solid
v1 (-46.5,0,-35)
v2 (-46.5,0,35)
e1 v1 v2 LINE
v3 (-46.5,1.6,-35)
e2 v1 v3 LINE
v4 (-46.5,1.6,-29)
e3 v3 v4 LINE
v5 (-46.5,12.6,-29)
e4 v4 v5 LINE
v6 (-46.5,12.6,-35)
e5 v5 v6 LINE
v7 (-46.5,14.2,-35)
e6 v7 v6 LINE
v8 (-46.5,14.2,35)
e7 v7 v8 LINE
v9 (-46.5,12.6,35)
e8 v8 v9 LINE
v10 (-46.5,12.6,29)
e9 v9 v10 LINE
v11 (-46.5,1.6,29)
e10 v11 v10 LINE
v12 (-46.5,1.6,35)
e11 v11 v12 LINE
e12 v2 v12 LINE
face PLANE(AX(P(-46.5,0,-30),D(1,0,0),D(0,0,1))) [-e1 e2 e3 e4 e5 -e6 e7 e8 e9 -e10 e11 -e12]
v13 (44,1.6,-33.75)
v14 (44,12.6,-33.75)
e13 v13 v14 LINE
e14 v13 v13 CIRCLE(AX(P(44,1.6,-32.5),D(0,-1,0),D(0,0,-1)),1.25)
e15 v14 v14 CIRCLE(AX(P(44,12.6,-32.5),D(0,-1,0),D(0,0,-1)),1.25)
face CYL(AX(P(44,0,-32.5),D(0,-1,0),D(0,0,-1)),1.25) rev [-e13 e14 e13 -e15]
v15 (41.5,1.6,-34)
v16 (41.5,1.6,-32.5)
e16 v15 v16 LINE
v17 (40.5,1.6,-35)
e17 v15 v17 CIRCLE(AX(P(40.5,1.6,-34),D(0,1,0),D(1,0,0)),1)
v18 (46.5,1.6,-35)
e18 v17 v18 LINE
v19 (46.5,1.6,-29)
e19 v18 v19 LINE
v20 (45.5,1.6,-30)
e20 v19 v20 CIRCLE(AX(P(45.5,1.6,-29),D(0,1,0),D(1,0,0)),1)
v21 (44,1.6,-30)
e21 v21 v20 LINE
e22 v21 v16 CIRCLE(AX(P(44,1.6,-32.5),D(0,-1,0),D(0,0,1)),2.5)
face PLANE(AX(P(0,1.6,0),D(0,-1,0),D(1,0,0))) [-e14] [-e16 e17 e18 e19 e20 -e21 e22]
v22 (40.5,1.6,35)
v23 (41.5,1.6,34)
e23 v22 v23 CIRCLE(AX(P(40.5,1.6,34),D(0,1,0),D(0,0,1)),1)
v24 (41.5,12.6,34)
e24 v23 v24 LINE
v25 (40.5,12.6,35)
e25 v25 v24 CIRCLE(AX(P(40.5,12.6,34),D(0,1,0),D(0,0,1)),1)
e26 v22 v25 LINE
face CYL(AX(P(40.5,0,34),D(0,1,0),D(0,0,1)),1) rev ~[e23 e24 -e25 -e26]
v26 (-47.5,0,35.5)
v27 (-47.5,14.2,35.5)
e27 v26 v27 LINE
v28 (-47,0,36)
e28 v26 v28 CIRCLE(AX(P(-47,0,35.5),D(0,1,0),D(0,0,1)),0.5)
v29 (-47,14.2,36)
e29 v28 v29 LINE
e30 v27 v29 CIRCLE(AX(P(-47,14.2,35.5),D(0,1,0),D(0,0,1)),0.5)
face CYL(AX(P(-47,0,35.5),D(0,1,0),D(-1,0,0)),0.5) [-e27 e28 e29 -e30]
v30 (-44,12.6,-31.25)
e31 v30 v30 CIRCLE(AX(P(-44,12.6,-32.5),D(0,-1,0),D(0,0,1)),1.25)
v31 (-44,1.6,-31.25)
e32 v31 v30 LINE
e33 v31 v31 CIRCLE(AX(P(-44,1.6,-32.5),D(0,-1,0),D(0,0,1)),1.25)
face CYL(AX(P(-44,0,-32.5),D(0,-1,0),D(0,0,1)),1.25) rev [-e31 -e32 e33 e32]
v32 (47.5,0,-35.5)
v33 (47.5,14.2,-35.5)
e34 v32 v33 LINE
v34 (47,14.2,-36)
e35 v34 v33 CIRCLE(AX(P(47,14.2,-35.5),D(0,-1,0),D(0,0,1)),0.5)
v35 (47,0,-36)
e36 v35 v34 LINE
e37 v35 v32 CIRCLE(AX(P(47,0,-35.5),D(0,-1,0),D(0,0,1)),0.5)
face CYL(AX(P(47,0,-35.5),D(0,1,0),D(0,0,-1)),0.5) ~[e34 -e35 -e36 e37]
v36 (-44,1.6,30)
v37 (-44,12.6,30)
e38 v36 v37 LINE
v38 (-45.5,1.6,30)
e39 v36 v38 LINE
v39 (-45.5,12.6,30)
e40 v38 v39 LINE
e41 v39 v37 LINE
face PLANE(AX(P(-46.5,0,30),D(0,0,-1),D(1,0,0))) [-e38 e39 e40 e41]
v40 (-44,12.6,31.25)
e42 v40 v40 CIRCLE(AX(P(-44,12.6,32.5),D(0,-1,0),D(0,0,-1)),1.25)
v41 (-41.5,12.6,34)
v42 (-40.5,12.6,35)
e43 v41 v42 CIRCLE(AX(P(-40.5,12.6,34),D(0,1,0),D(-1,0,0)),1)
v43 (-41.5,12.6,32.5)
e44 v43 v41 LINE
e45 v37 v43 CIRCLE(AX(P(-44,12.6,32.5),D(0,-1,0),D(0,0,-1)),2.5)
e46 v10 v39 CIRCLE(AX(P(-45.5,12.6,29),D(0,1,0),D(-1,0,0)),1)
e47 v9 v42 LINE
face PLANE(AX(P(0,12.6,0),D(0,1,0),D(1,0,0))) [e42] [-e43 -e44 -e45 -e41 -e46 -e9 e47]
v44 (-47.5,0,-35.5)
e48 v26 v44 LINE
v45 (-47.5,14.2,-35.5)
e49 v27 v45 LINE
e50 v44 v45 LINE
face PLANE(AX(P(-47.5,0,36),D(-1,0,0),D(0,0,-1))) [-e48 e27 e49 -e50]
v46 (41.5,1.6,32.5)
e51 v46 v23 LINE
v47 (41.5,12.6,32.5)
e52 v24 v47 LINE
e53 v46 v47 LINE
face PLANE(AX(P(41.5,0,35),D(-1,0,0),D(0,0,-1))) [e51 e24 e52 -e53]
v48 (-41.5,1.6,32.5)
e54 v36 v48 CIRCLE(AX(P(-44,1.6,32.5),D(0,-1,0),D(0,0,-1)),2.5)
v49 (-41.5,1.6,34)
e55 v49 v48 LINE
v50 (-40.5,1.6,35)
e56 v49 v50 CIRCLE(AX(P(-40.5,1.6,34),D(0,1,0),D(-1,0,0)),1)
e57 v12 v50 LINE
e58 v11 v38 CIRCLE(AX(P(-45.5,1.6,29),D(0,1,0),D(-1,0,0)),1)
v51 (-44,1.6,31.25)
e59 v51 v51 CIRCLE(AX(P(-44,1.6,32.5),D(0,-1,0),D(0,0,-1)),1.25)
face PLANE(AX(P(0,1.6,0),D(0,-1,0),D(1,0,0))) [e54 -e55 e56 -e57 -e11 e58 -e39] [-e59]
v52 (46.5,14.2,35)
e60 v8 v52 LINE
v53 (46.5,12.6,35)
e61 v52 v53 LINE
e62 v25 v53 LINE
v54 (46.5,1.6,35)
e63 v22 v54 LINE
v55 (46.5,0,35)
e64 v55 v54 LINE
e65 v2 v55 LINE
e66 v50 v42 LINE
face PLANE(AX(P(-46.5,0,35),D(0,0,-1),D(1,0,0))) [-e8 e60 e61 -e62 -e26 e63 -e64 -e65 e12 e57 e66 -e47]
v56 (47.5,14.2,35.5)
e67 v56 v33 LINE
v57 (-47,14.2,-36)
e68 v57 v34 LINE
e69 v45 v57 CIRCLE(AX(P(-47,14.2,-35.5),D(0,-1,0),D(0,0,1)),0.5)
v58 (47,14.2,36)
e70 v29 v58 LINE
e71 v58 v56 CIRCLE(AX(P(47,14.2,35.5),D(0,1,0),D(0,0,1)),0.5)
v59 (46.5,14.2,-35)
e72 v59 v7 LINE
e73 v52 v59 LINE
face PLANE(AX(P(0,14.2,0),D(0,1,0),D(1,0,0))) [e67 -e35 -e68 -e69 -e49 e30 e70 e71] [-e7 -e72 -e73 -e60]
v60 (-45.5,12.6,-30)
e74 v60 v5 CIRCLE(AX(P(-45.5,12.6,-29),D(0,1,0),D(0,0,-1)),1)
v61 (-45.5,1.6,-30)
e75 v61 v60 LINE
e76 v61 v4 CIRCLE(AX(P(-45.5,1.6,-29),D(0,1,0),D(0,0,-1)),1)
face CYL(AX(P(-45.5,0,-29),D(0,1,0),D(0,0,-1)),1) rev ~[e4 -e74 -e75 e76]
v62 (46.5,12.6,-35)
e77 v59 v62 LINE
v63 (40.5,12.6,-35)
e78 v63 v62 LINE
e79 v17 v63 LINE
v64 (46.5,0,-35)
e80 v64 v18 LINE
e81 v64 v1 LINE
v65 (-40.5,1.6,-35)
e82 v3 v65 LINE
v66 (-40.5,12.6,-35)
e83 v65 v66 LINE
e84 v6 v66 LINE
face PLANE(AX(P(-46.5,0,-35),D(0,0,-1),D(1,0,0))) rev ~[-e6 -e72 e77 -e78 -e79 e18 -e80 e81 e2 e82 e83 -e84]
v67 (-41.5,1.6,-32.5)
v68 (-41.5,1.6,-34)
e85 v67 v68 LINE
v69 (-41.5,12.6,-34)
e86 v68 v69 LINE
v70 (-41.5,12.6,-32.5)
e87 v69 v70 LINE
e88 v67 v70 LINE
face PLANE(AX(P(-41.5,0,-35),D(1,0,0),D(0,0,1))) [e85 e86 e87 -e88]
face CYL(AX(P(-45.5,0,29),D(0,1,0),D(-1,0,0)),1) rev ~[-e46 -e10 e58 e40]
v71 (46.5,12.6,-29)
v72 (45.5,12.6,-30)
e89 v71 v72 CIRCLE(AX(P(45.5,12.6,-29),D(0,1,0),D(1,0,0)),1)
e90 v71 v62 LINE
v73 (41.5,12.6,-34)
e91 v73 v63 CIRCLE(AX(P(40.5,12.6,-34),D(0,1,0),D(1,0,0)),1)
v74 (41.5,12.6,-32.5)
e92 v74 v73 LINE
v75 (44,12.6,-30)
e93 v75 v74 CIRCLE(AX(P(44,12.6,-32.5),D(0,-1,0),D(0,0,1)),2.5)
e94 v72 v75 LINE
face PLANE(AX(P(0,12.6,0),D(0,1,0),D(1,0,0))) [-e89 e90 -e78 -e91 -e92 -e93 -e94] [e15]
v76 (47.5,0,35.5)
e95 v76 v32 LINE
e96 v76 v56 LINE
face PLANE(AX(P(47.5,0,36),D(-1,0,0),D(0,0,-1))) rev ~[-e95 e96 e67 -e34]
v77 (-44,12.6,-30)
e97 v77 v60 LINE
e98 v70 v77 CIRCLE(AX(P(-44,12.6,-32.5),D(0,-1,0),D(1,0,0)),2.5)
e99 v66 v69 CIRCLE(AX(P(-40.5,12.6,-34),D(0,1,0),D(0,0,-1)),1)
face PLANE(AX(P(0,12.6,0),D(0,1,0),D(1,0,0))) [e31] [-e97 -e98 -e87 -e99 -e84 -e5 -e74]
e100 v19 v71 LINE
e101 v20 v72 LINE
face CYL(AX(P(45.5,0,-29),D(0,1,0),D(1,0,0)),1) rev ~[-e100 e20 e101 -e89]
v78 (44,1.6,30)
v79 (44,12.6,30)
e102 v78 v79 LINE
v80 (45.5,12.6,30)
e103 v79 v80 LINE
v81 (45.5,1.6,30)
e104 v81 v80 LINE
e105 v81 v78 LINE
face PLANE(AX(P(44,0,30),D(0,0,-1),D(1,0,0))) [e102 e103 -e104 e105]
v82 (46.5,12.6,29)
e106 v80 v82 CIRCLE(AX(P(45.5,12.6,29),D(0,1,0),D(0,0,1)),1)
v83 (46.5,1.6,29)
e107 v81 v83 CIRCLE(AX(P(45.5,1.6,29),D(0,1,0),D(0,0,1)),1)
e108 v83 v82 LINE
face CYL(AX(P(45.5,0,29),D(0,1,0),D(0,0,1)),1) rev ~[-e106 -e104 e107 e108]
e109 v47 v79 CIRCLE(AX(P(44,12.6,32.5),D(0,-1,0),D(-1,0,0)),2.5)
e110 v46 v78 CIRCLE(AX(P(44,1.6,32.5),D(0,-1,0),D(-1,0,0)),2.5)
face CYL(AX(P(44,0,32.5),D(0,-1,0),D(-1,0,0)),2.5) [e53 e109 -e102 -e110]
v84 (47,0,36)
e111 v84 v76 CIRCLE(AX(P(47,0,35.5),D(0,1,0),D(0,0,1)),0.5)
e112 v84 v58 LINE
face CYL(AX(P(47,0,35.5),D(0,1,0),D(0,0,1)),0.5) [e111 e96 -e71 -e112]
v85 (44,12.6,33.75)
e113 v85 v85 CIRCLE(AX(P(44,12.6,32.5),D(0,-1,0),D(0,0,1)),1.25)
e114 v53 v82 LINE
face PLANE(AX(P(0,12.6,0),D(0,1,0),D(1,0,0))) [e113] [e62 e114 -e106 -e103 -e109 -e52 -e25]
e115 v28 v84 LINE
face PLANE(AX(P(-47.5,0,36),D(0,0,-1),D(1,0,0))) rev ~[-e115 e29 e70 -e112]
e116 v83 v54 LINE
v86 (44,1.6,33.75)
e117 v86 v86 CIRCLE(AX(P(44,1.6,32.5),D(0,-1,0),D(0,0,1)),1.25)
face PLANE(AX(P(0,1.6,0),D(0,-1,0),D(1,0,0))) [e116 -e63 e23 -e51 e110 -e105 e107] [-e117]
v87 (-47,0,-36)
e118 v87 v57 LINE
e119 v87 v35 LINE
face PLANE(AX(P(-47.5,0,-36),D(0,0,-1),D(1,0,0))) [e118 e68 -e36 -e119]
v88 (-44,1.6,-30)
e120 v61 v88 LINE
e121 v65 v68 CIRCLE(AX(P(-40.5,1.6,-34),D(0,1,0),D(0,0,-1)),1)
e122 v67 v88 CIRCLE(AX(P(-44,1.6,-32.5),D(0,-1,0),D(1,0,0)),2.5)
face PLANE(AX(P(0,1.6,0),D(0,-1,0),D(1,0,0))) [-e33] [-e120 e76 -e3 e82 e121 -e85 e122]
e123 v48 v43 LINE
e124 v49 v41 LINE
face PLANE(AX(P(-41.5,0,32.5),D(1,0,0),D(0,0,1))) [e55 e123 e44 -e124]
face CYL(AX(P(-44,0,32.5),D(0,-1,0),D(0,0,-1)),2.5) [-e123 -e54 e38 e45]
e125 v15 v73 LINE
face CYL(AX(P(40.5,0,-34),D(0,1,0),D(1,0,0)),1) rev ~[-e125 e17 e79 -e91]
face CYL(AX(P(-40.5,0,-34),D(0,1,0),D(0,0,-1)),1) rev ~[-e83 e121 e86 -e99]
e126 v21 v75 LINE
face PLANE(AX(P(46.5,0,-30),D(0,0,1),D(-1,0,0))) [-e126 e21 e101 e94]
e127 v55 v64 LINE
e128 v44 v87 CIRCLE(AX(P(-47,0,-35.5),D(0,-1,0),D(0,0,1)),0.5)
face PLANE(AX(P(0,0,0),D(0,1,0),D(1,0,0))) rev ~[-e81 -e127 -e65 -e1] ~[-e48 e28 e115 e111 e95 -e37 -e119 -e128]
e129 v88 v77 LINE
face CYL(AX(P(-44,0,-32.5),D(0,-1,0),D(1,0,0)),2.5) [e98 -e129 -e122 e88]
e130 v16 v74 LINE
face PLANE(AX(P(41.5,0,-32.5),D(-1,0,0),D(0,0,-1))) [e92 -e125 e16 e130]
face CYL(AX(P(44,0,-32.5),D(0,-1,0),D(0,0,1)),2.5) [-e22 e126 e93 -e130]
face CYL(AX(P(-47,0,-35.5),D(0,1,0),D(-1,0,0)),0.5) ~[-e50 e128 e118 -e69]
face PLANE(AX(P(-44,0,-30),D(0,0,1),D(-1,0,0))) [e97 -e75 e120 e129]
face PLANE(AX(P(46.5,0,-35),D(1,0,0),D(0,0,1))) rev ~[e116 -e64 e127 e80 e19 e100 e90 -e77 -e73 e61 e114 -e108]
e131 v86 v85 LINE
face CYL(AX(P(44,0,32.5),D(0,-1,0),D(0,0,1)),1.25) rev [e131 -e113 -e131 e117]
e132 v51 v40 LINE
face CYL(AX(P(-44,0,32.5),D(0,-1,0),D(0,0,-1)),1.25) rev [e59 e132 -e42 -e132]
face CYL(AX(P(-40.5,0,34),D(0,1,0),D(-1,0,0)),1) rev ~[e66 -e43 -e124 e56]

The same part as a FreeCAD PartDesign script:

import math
import FreeCAD as App
import Part
import Sketcher
Q = App.Units.Quantity


def edges_at(feature, points):
    """Names of the edges that pass closest to the given points."""
    edges = feature.Shape.Edges
    near = lambda p: min(range(len(edges)), key=lambda i: edges[i].distToShape(Part.Vertex(*p))[0])
    return sorted({f"Edge{near(p) + 1}" for p in points})


def add_polygon(sketch, points):
    """Adds a closed chain of lines whose ends are joined by coincident constraints."""
    first, n = sketch.GeometryCount, len(points)
    for a, b in zip(points, points[1:] + points[:1]):
        sketch.addGeometry(Part.LineSegment(App.Vector(*a, 0), App.Vector(*b, 0)), False)
    for i in range(n):
        sketch.addConstraint(Sketcher.Constraint("Coincident", first + i, 2, first + (i + 1) % n, 1))

doc = App.newDocument("Part")
body = doc.addObject("PartDesign::Body", "Body")

sketch1 = body.newObject("Sketcher::SketchObject", "Sketch")
sketch1.AttachmentSupport = (doc.getObject("XZ_Plane"), [""])
sketch1.MapMode = "FlatFace"
add_polygon(sketch1, [(-47.5, -36), (-47.5, 36), (47.5, 36), (47.5, -36)])
sketch1.addGeometry(Part.Circle(App.Vector(-44, 32.5, 0), App.Vector(0, 0, 1), 1.2), False)
sketch1.addGeometry(Part.Circle(App.Vector(44, 32.5, 0), App.Vector(0, 0, 1), 1.2), False)
sketch1.addGeometry(Part.Circle(App.Vector(-44, -32.5, 0), App.Vector(0, 0, 1), 1.2), False)
sketch1.addGeometry(Part.LineSegment(App.Vector(-46.5, -30, 0), App.Vector(-44, -30, 0)), False)
sketch1.addGeometry(Part.ArcOfCircle(Part.Circle(App.Vector(-44, -32.5, 0), App.Vector(0, 0, 1), 2.5), math.radians(0), math.radians(90)), False)
sketch1.addGeometry(Part.LineSegment(App.Vector(-41.5, -32.5, 0), App.Vector(-41.5, -35, 0)), False)
sketch1.addGeometry(Part.LineSegment(App.Vector(-41.5, -35, 0), App.Vector(41.5, -35, 0)), False)
sketch1.addGeometry(Part.LineSegment(App.Vector(41.5, -35, 0), App.Vector(41.5, -32.5, 0)), False)
sketch1.addGeometry(Part.ArcOfCircle(Part.Circle(App.Vector(44, -32.5, 0), App.Vector(0, 0, 1), 2.5), math.radians(90), math.radians(180)), False)
sketch1.addGeometry(Part.LineSegment(App.Vector(44, -30, 0), App.Vector(46.5, -30, 0)), False)
sketch1.addGeometry(Part.LineSegment(App.Vector(46.5, -30, 0), App.Vector(46.5, 30, 0)), False)
sketch1.addGeometry(Part.LineSegment(App.Vector(46.5, 30, 0), App.Vector(44, 30, 0)), False)
sketch1.addGeometry(Part.ArcOfCircle(Part.Circle(App.Vector(44, 32.5, 0), App.Vector(0, 0, 1), 2.5), math.radians(180), math.radians(270)), False)
sketch1.addGeometry(Part.LineSegment(App.Vector(41.5, 32.5, 0), App.Vector(41.5, 35, 0)), False)
sketch1.addGeometry(Part.LineSegment(App.Vector(41.5, 35, 0), App.Vector(-41.5, 35, 0)), False)
sketch1.addGeometry(Part.LineSegment(App.Vector(-41.5, 35, 0), App.Vector(-41.5, 32.5, 0)), False)
sketch1.addGeometry(Part.ArcOfCircle(Part.Circle(App.Vector(-44, 32.5, 0), App.Vector(0, 0, 1), 2.5), math.radians(-90), math.radians(0)), False)
sketch1.addGeometry(Part.LineSegment(App.Vector(-44, 30, 0), App.Vector(-46.5, 30, 0)), False)
sketch1.addGeometry(Part.LineSegment(App.Vector(-46.5, 30, 0), App.Vector(-46.5, -30, 0)), False)
sketch1.addGeometry(Part.Circle(App.Vector(44, -32.5, 0), App.Vector(0, 0, 1), 1.2), False)
sketch1.addConstraint(Sketcher.Constraint("Tangent", 7, 2, 8, 2))
sketch1.addConstraint(Sketcher.Constraint("Tangent", 8, 1, 9, 1))
sketch1.addConstraint(Sketcher.Constraint("Coincident", 9, 2, 10, 1))
sketch1.addConstraint(Sketcher.Constraint("Coincident", 10, 2, 11, 1))
sketch1.addConstraint(Sketcher.Constraint("Tangent", 11, 2, 12, 2))
sketch1.addConstraint(Sketcher.Constraint("Tangent", 12, 1, 13, 1))
sketch1.addConstraint(Sketcher.Constraint("Coincident", 13, 2, 14, 1))
sketch1.addConstraint(Sketcher.Constraint("Coincident", 14, 2, 15, 1))
sketch1.addConstraint(Sketcher.Constraint("Tangent", 15, 2, 16, 2))
sketch1.addConstraint(Sketcher.Constraint("Tangent", 16, 1, 17, 1))
sketch1.addConstraint(Sketcher.Constraint("Coincident", 17, 2, 18, 1))
sketch1.addConstraint(Sketcher.Constraint("Coincident", 18, 2, 19, 1))
sketch1.addConstraint(Sketcher.Constraint("Tangent", 19, 2, 20, 2))
sketch1.addConstraint(Sketcher.Constraint("Tangent", 20, 1, 21, 1))
sketch1.addConstraint(Sketcher.Constraint("Coincident", 21, 2, 22, 1))
sketch1.addConstraint(Sketcher.Constraint("Coincident", 22, 2, 7, 1))
sketch1.addConstraint(Sketcher.Constraint("Vertical", 0))
sketch1.addConstraint(Sketcher.Constraint("Horizontal", 1))
sketch1.addConstraint(Sketcher.Constraint("Vertical", 2))
sketch1.addConstraint(Sketcher.Constraint("Horizontal", 3))
sketch1.addConstraint(Sketcher.Constraint("Horizontal", 7))
sketch1.addConstraint(Sketcher.Constraint("Vertical", 9))
sketch1.addConstraint(Sketcher.Constraint("Horizontal", 10))
sketch1.addConstraint(Sketcher.Constraint("Vertical", 11))
sketch1.addConstraint(Sketcher.Constraint("Horizontal", 13))
sketch1.addConstraint(Sketcher.Constraint("Vertical", 14))
sketch1.addConstraint(Sketcher.Constraint("Horizontal", 15))
sketch1.addConstraint(Sketcher.Constraint("Vertical", 17))
sketch1.addConstraint(Sketcher.Constraint("Horizontal", 18))
sketch1.addConstraint(Sketcher.Constraint("Vertical", 19))
sketch1.addConstraint(Sketcher.Constraint("Horizontal", 21))
sketch1.addConstraint(Sketcher.Constraint("Vertical", 22))
sketch1.addConstraint(Sketcher.Constraint("Coincident", 8, 3, 6, 3))
sketch1.addConstraint(Sketcher.Constraint("Coincident", 16, 3, 5, 3))
sketch1.addConstraint(Sketcher.Constraint("Coincident", 20, 3, 4, 3))
sketch1.addConstraint(Sketcher.Constraint("Coincident", 23, 3, 12, 3))
sketch1.addConstraint(Sketcher.Constraint("Equal", 4, 5))
sketch1.addConstraint(Sketcher.Constraint("Equal", 5, 6))
sketch1.addConstraint(Sketcher.Constraint("Equal", 8, 12))
sketch1.addConstraint(Sketcher.Constraint("Equal", 12, 16))
sketch1.addConstraint(Sketcher.Constraint("Equal", 16, 20))
sketch1.addConstraint(Sketcher.Constraint("Equal", 6, 23))
sketch1.addConstraint(Sketcher.Constraint("Symmetric", 5, 3, 6, 3, -1, 1))
sketch1.addConstraint(Sketcher.Constraint("Symmetric", 4, 3, 12, 3, -1, 1))
sketch1.addConstraint(Sketcher.Constraint("Symmetric", 0, 2, 2, 2, -1, 1))
sketch1.addConstraint(Sketcher.Constraint("Symmetric", 4, 3, 5, 3, -2))
sketch1.addConstraint(Sketcher.Constraint("Equal", 7, 13))
sketch1.addConstraint(Sketcher.Constraint("Equal", 21, 9))
sketch1.addConstraint(Sketcher.Constraint("Equal", 11, 17))
sketch1.addConstraint(Sketcher.Constraint("Diameter", 4, Q("2.5 mm")))
sketch1.addConstraint(Sketcher.Constraint("Radius", 8, Q("2.5 mm")))
sketch1.addConstraint(Sketcher.Constraint("DistanceX", 1, 1, 1, 2, Q("95 mm")))
sketch1.addConstraint(Sketcher.Constraint("DistanceX", 10, 1, 10, 2, Q("83 mm")))
sketch1.addConstraint(Sketcher.Constraint("DistanceY", 0, 1, 0, 2, Q("72 mm")))
sketch1.addConstraint(Sketcher.Constraint("DistanceY", 14, 1, 14, 2, Q("60 mm")))
sketch1.addConstraint(Sketcher.Constraint("DistanceX", 7, 1, 7, 2, Q("2.5 mm")))
pad1 = body.newObject("PartDesign::Pad", "Pad")
pad1.Profile = sketch1
pad1.Length = 14.2
pad1.Reversed = True
doc.recompute()

fillet = body.newObject("PartDesign::Fillet", "Fillet")
fillet.Base = (pad1, edges_at(pad1, [
    (47.5, 7.1, -36),
    (47.5, 7.1, 36),
    (-47.5, 7.1, 36),
    (-47.5, 7.1, -36),
]))
fillet.Radius = 0.5
doc.recompute()

fillet2 = body.newObject("PartDesign::Fillet", "Fillet001")
fillet2.Base = (fillet, edges_at(fillet, [
    (-46.5, 7.1, -30),
    (-46.5, 7.1, 30),
    (-41.5, 7.1, 35),
    (41.5, 7.1, 35),
    (46.5, 7.1, 30),
    (46.5, 7.1, -30),
    (41.5, 7.1, -35),
    (-41.5, 7.1, -35),
]))
fillet2.Radius = 1

sketch2 = body.newObject("Sketcher::SketchObject", "Sketch001")
sketch2.AttachmentSupport = (doc.getObject("XZ_Plane"), [""])
sketch2.MapMode = "FlatFace"
sketch2.AttachmentOffset = App.Placement(App.Vector(0, 0, -14.2), App.Rotation())
add_polygon(sketch2, [(-46, -35), (-46, 35), (46, 35), (46, -35)])
sketch2.addConstraint(Sketcher.Constraint("Vertical", 0))
sketch2.addConstraint(Sketcher.Constraint("Horizontal", 1))
sketch2.addConstraint(Sketcher.Constraint("Vertical", 2))
sketch2.addConstraint(Sketcher.Constraint("Horizontal", 3))
sketch2.addConstraint(Sketcher.Constraint("Symmetric", 0, 2, 2, 2, -1, 1))
sketch2.addConstraint(Sketcher.Constraint("DistanceX", 1, 1, 1, 2, Q("93 mm")))
sketch2.addConstraint(Sketcher.Constraint("DistanceY", 0, 1, 0, 2, Q("70 mm")))
pocket1 = body.newObject("PartDesign::Pocket", "Pocket")
pocket1.Profile = sketch2
pocket1.Length = 1.6
pocket1.Reversed = True

sketch3 = body.newObject("Sketcher::SketchObject", "Sketch002")
sketch3.AttachmentSupport = (doc.getObject("XZ_Plane"), [""])
sketch3.MapMode = "FlatFace"
add_polygon(sketch3, [(-46, 35), (-46, -35), (46, -35), (46, 35)])
sketch3.addConstraint(Sketcher.Constraint("Vertical", 0))
sketch3.addConstraint(Sketcher.Constraint("Horizontal", 1))
sketch3.addConstraint(Sketcher.Constraint("Vertical", 2))
sketch3.addConstraint(Sketcher.Constraint("Horizontal", 3))
sketch3.addConstraint(Sketcher.Constraint("Symmetric", 0, 2, 2, 2, -1, 1))
sketch3.addConstraint(Sketcher.Constraint("DistanceX", 1, 1, 1, 2, Q("93 mm")))
sketch3.addConstraint(Sketcher.Constraint("DistanceY", 0, 2, 0, 1, Q("70 mm")))
pocket2 = body.newObject("PartDesign::Pocket", "Pocket001")
pocket2.Profile = sketch3
pocket2.Length = 1.6

doc.recompute()
